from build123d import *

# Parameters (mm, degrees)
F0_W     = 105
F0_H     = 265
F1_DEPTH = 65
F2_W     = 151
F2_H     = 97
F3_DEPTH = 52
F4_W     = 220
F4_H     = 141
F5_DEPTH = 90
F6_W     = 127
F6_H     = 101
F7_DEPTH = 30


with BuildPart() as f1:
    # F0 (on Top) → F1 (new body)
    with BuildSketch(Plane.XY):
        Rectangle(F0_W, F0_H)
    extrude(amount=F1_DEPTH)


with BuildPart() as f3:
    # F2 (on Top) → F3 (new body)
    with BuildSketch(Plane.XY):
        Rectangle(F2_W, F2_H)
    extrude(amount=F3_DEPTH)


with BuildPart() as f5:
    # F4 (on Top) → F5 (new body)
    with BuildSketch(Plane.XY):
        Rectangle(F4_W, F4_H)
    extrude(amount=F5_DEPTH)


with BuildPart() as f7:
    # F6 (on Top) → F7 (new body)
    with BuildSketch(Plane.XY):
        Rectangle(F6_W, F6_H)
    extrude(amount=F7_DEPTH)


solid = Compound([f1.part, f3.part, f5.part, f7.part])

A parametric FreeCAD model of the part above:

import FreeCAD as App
import Part
import Sketcher
from FreeCAD import Vector
Q = App.Units.Quantity

doc = App.newDocument("Part")
body = doc.addObject("PartDesign::Body", "Body")

# Sketch on XY plane
sketch1 = body.newObject("Sketcher::SketchObject", "Sketch")
sketch1.AttachmentSupport = (doc.getObject("XY_Plane"), [""])
sketch1.MapMode = "FlatFace"
sketch1.addGeometry([
    Part.LineSegment(Vector(-52.5, 132.5, 0), Vector(-52.5, -132.5, 0)),
    Part.LineSegment(Vector(-52.5, -132.5, 0), Vector(52.5, -132.5, 0)),
    Part.LineSegment(Vector(52.5, -132.5, 0), Vector(52.5, 132.5, 0)),
    Part.LineSegment(Vector(52.5, 132.5, 0), Vector(-52.5, 132.5, 0)),
], False)
sketch1.addConstraint([
    Sketcher.Constraint("Coincident", 0, 2, 1, 1),
    Sketcher.Constraint("Coincident", 1, 2, 2, 1),
    Sketcher.Constraint("Coincident", 2, 2, 3, 1),
    Sketcher.Constraint("Coincident", 3, 2, 0, 1),
    Sketcher.Constraint("Vertical", 0),
    Sketcher.Constraint("Horizontal", 1),
    Sketcher.Constraint("Vertical", 2),
    Sketcher.Constraint("Horizontal", 3),
    Sketcher.Constraint("Symmetric", 0, 2, 2, 2, -1, 1),
    Sketcher.Constraint("DistanceX", 1, 1, 1, 2, Q("105 mm")),
    Sketcher.Constraint("DistanceY", 0, 2, 0, 1, Q("265 mm")),
])
pad1 = body.newObject("PartDesign::Pad", "Pad")
pad1.Profile = sketch1
pad1.Length = 65
body2 = doc.addObject("PartDesign::Body", "Body001")

# Sketch on XY plane
sketch2 = body2.newObject("Sketcher::SketchObject", "Sketch001")
sketch2.AttachmentSupport = (doc.getObject("XY_Plane001"), [""])
sketch2.MapMode = "FlatFace"
sketch2.addGeometry([
    Part.LineSegment(Vector(-75.5, 48.5, 0), Vector(-75.5, -48.5, 0)),
    Part.LineSegment(Vector(-75.5, -48.5, 0), Vector(75.5, -48.5, 0)),
    Part.LineSegment(Vector(75.5, -48.5, 0), Vector(75.5, 48.5, 0)),
    Part.LineSegment(Vector(75.5, 48.5, 0), Vector(-75.5, 48.5, 0)),
], False)
sketch2.addConstraint([
    Sketcher.Constraint("Coincident", 0, 2, 1, 1),
    Sketcher.Constraint("Coincident", 1, 2, 2, 1),
    Sketcher.Constraint("Coincident", 2, 2, 3, 1),
    Sketcher.Constraint("Coincident", 3, 2, 0, 1),
    Sketcher.Constraint("Vertical", 0),
    Sketcher.Constraint("Horizontal", 1),
    Sketcher.Constraint("Vertical", 2),
    Sketcher.Constraint("Horizontal", 3),
    Sketcher.Constraint("Symmetric", 0, 2, 2, 2, -1, 1),
    Sketcher.Constraint("DistanceX", 1, 1, 1, 2, Q("151 mm")),
    Sketcher.Constraint("DistanceY", 0, 2, 0, 1, Q("97 mm")),
])
pad2 = body2.newObject("PartDesign::Pad", "Pad001")
pad2.Profile = sketch2
pad2.Length = 52
body3 = doc.addObject("PartDesign::Body", "Body002")

# Sketch on XY plane
sketch3 = body3.newObject("Sketcher::SketchObject", "Sketch002")
sketch3.AttachmentSupport = (doc.getObject("XY_Plane002"), [""])
sketch3.MapMode = "FlatFace"
sketch3.addGeometry([
    Part.LineSegment(Vector(-110, 70.5, 0), Vector(-110, -70.5, 0)),
    Part.LineSegment(Vector(-110, -70.5, 0), Vector(110, -70.5, 0)),
    Part.LineSegment(Vector(110, -70.5, 0), Vector(110, 70.5, 0)),
    Part.LineSegment(Vector(110, 70.5, 0), Vector(-110, 70.5, 0)),
], False)
sketch3.addConstraint([
    Sketcher.Constraint("Coincident", 0, 2, 1, 1),
    Sketcher.Constraint("Coincident", 1, 2, 2, 1),
    Sketcher.Constraint("Coincident", 2, 2, 3, 1),
    Sketcher.Constraint("Coincident", 3, 2, 0, 1),
    Sketcher.Constraint("Vertical", 0),
    Sketcher.Constraint("Horizontal", 1),
    Sketcher.Constraint("Vertical", 2),
    Sketcher.Constraint("Horizontal", 3),
    Sketcher.Constraint("Symmetric", 0, 2, 2, 2, -1, 1),
    Sketcher.Constraint("DistanceX", 1, 1, 1, 2, Q("220 mm")),
    Sketcher.Constraint("DistanceY", 0, 2, 0, 1, Q("141 mm")),
])
pad3 = body3.newObject("PartDesign::Pad", "Pad002")
pad3.Profile = sketch3
pad3.Length = 90
body4 = doc.addObject("PartDesign::Body", "Body003")

# Sketch on XY plane
sketch4 = body4.newObject("Sketcher::SketchObject", "Sketch003")
sketch4.AttachmentSupport = (doc.getObject("XY_Plane003"), [""])
sketch4.MapMode = "FlatFace"
sketch4.addGeometry([
    Part.LineSegment(Vector(-63.5, 50.5, 0), Vector(-63.5, -50.5, 0)),
    Part.LineSegment(Vector(-63.5, -50.5, 0), Vector(63.5, -50.5, 0)),
    Part.LineSegment(Vector(63.5, -50.5, 0), Vector(63.5, 50.5, 0)),
    Part.LineSegment(Vector(63.5, 50.5, 0), Vector(-63.5, 50.5, 0)),
], False)
sketch4.addConstraint([
    Sketcher.Constraint("Coincident", 0, 2, 1, 1),
    Sketcher.Constraint("Coincident", 1, 2, 2, 1),
    Sketcher.Constraint("Coincident", 2, 2, 3, 1),
    Sketcher.Constraint("Coincident", 3, 2, 0, 1),
    Sketcher.Constraint("Vertical", 0),
    Sketcher.Constraint("Horizontal", 1),
    Sketcher.Constraint("Vertical", 2),
    Sketcher.Constraint("Horizontal", 3),
    Sketcher.Constraint("Symmetric", 0, 2, 2, 2, -1, 1),
    Sketcher.Constraint("DistanceX", 1, 1, 1, 2, Q("127 mm")),
    Sketcher.Constraint("DistanceY", 0, 2, 0, 1, Q("101 mm")),
])
pad4 = body4.newObject("PartDesign::Pad", "Pad003")
pad4.Profile = sketch4
pad4.Length = 30

doc.recompute()
